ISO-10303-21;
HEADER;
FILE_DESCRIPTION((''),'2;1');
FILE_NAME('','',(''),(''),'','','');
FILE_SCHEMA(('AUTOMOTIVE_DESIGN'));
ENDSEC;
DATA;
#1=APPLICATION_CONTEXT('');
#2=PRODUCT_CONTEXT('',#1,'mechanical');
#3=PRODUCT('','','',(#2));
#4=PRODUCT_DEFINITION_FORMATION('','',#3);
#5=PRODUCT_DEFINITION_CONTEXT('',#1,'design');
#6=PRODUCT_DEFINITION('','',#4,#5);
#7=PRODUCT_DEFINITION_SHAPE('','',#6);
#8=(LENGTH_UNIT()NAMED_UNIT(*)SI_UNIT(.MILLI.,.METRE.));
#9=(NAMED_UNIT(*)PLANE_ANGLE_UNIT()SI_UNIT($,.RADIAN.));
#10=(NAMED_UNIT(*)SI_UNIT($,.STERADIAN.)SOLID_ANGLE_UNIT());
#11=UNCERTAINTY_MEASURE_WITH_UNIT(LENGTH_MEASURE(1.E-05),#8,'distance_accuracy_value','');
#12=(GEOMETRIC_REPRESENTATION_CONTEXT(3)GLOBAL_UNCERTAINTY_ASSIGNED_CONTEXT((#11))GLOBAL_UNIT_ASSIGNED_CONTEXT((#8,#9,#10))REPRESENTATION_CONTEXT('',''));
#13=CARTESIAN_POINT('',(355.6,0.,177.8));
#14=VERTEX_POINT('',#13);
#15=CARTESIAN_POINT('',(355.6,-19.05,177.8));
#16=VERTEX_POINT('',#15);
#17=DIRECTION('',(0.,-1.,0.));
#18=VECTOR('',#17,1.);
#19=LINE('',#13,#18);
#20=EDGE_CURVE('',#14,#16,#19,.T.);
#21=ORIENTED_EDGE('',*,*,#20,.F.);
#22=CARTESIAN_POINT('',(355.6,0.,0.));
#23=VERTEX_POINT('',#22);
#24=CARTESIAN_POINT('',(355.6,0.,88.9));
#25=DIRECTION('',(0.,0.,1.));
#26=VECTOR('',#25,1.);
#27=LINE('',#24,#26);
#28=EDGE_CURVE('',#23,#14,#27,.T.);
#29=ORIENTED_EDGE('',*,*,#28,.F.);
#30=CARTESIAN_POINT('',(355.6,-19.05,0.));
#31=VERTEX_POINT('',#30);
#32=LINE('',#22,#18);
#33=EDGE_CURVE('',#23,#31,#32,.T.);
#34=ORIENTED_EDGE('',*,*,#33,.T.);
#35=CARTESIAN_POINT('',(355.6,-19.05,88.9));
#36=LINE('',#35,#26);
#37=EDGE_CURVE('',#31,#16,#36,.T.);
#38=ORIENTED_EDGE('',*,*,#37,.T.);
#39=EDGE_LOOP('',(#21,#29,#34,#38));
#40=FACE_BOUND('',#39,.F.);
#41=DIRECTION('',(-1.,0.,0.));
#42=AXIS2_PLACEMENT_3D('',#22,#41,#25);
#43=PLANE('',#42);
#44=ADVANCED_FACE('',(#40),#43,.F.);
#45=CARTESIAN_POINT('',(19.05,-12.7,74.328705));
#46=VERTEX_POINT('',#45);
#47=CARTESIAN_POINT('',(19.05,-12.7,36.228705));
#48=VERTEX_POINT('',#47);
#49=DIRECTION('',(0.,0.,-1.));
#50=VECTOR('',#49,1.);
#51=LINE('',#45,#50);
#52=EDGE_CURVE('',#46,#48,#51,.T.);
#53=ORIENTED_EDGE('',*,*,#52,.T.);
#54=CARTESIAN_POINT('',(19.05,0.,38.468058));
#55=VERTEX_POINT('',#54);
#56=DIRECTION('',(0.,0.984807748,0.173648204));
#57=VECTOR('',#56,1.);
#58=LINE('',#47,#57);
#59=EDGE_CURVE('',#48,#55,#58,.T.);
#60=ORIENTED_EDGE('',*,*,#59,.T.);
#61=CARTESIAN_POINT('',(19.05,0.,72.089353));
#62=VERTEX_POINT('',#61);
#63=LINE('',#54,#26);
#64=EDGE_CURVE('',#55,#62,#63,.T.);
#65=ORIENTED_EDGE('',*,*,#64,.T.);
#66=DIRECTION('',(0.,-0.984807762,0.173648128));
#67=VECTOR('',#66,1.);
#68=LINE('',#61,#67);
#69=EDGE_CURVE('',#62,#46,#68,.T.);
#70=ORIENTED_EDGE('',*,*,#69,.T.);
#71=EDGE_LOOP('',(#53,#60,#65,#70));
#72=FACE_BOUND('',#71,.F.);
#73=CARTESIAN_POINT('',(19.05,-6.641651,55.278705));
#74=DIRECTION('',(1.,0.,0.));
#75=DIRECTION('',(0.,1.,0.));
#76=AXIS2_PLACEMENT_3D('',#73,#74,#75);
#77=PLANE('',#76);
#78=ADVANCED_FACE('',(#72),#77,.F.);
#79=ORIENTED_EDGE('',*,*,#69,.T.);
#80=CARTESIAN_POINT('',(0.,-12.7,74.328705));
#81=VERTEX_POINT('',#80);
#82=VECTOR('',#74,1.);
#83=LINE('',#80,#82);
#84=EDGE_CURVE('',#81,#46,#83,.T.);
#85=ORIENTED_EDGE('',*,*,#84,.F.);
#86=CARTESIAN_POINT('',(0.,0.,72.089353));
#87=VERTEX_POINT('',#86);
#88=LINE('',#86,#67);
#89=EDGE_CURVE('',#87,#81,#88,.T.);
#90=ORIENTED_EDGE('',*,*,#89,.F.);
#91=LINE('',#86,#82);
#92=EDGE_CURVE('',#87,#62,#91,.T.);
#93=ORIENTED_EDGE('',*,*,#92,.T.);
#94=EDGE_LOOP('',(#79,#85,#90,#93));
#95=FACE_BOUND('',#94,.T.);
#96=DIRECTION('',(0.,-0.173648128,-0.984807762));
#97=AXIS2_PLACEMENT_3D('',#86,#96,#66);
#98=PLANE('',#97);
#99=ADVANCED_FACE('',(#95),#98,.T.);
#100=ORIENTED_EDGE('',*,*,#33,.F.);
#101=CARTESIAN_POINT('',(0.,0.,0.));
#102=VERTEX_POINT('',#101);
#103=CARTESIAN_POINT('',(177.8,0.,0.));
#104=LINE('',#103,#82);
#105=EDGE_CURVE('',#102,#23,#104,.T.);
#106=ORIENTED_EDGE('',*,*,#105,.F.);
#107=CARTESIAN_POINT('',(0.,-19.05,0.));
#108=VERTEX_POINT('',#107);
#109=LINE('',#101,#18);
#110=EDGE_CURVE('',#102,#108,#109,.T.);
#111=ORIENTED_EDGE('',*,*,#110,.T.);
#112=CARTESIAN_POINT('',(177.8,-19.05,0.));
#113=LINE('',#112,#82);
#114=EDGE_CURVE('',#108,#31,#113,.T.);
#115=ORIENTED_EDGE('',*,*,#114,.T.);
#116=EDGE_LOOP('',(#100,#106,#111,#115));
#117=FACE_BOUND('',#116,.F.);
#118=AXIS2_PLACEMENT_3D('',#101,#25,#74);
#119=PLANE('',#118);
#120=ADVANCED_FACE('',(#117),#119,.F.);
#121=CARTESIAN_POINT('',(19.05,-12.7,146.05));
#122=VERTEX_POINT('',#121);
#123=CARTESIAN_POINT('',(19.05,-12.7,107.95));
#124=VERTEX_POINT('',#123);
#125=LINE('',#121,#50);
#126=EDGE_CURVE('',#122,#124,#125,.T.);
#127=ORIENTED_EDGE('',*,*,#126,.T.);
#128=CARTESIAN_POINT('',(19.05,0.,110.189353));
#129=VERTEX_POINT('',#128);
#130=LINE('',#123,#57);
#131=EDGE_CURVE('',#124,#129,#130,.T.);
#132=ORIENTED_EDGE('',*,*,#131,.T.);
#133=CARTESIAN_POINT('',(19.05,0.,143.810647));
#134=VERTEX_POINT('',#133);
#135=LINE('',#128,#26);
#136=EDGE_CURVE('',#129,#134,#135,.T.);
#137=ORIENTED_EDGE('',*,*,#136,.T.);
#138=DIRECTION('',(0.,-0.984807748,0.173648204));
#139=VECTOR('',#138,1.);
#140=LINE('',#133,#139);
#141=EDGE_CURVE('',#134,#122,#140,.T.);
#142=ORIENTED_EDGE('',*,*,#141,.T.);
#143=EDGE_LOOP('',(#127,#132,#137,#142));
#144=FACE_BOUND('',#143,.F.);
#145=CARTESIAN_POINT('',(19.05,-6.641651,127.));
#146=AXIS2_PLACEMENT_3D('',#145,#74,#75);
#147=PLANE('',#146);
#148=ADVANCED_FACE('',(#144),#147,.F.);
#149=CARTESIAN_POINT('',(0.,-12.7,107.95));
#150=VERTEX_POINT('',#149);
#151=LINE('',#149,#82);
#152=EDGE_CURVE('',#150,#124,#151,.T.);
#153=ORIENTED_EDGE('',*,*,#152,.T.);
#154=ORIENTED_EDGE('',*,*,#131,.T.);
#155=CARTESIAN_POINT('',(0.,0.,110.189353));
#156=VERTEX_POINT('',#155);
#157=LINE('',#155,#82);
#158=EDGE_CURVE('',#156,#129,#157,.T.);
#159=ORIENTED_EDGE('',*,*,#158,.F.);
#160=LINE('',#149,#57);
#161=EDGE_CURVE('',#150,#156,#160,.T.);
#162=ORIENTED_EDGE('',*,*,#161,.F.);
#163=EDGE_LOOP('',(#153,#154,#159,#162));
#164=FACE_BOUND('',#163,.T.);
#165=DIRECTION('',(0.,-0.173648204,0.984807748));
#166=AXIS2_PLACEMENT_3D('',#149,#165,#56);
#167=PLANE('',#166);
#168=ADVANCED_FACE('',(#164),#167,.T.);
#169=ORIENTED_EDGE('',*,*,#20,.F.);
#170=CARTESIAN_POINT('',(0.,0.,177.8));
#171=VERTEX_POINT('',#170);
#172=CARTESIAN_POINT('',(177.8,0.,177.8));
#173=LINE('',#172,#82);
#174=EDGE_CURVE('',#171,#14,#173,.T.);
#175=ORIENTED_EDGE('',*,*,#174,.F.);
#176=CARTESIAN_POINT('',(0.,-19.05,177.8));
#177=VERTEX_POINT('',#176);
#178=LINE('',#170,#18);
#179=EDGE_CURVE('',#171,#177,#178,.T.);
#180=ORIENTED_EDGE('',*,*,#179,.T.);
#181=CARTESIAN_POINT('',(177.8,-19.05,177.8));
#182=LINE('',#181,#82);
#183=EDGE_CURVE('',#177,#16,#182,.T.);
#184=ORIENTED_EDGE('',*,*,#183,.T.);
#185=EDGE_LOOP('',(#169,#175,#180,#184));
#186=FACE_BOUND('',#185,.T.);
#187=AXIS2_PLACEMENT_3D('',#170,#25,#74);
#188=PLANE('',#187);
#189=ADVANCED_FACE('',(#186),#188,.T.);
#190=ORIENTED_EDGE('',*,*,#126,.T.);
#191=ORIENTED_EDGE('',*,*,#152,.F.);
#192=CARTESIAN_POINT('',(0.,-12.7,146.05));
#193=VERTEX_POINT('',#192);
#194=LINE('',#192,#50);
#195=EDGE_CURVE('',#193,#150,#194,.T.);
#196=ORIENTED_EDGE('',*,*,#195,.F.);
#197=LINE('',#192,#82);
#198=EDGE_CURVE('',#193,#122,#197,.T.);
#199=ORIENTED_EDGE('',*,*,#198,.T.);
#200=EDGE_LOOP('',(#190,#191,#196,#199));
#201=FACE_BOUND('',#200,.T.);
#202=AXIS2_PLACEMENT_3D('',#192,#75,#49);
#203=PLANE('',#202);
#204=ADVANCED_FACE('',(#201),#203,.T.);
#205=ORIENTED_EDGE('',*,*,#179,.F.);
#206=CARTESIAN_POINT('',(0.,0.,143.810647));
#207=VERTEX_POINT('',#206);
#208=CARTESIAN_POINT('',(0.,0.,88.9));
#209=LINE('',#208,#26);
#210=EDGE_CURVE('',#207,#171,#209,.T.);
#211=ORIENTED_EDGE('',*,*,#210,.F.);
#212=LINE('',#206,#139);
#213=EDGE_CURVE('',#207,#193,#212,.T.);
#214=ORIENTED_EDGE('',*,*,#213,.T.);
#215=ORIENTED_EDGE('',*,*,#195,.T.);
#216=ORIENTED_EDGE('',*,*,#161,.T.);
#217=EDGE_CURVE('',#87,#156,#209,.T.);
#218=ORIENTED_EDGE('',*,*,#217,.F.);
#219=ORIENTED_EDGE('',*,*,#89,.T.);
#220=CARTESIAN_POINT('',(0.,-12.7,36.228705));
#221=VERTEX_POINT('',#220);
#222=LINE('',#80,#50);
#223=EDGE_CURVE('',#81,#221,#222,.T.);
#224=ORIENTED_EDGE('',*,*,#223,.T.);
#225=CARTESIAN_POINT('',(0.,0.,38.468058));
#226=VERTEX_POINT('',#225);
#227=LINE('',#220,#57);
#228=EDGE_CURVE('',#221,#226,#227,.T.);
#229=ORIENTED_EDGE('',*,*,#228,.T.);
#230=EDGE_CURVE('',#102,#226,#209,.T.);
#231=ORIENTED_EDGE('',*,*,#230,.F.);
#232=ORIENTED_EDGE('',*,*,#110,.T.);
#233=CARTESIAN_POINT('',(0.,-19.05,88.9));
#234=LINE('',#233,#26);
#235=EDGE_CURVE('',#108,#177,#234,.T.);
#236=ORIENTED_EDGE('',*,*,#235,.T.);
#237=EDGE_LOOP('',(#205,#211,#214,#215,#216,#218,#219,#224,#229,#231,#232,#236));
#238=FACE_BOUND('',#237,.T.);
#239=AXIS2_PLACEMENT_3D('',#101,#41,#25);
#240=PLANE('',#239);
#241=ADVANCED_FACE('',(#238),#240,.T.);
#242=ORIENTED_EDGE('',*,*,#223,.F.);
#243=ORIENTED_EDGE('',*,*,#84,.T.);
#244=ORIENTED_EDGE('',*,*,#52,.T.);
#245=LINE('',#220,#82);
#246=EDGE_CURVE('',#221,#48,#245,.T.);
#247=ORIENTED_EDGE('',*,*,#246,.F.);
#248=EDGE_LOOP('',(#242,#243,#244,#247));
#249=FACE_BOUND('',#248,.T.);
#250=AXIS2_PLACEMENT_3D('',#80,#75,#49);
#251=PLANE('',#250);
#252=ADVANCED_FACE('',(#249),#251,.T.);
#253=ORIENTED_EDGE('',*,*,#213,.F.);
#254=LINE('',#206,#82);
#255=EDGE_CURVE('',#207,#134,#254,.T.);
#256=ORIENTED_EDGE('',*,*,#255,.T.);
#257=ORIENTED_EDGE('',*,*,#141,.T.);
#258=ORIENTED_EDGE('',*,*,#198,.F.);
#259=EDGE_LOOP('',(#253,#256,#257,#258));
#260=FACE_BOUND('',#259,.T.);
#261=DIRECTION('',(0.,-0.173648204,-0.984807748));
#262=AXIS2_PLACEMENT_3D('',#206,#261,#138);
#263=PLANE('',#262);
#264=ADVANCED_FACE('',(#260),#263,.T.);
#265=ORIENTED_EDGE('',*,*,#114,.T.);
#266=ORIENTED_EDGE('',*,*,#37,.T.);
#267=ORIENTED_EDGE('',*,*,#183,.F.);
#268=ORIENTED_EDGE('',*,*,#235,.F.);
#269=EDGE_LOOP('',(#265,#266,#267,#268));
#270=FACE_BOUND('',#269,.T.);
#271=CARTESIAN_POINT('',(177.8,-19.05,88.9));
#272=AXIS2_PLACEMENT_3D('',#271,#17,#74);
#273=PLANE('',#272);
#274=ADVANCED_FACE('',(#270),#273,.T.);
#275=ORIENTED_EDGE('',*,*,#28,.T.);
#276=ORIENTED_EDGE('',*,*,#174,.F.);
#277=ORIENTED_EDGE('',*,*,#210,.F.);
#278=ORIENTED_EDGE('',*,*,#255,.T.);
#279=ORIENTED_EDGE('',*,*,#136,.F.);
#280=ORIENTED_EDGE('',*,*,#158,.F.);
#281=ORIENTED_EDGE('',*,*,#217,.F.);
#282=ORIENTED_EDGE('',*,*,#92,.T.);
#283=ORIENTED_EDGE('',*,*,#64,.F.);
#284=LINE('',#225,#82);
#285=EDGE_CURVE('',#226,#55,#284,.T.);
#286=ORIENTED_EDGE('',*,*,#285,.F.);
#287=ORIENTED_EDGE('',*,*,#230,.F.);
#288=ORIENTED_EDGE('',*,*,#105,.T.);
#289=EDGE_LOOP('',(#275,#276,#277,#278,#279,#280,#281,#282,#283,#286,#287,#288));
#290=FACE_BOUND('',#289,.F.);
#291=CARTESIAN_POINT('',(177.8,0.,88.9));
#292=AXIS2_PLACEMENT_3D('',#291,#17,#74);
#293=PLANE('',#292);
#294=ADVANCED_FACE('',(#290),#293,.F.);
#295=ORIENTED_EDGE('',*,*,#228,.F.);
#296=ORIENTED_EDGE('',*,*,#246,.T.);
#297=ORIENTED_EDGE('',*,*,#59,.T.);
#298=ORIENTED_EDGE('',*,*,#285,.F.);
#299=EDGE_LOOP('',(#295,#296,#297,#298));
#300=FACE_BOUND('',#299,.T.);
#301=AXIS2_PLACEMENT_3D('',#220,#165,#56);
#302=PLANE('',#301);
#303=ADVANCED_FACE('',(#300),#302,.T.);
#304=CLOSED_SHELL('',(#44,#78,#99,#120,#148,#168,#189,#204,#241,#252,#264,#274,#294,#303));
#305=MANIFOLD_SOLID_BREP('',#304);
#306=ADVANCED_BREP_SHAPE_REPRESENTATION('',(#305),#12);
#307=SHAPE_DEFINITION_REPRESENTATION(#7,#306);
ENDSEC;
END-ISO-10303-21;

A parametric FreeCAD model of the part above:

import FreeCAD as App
import Part
import Sketcher
from FreeCAD import Vector
Q = App.Units.Quantity

doc = App.newDocument("Part")
params = doc.addObject("Spreadsheet::Sheet", "Params")
for row, (alias, value) in enumerate([
    ("sketch1_width", "14 in"),
    ("sketch1_height", "7 in"),
    ("pad1_length", "0.75 in"),
    ("sketch2_height", "1.5 in"),
    ("pocket1_length", "0.75 in"),
], start=1):
    params.set(f"A{row}", alias)
    params.set(f"B{row}", "=" + value)
    params.setAlias(f"B{row}", alias)

body = doc.addObject("PartDesign::Body", "Body")

# Sketch on XZ plane
sketch1 = body.newObject("Sketcher::SketchObject", "Sketch")
sketch1.AttachmentSupport = (doc.getObject("XZ_Plane"), [""])
sketch1.MapMode = "FlatFace"
sketch1.addGeometry(Part.LineSegment(Vector(0, 178, 0), Vector(0, 0, 0)), False)
sketch1.addGeometry(Part.LineSegment(Vector(0, 0, 0), Vector(356, 0, 0)), False)
sketch1.addGeometry(Part.LineSegment(Vector(356, 0, 0), Vector(356, 178, 0)), False)
sketch1.addGeometry(Part.LineSegment(Vector(356, 178, 0), Vector(0, 178, 0)), False)
sketch1.addConstraint(Sketcher.Constraint("Coincident", 0, 2, 1, 1))
sketch1.addConstraint(Sketcher.Constraint("Coincident", 1, 2, 2, 1))
sketch1.addConstraint(Sketcher.Constraint("Coincident", 2, 2, 3, 1))
sketch1.addConstraint(Sketcher.Constraint("Coincident", 3, 2, 0, 1))
sketch1.addConstraint(Sketcher.Constraint("Vertical", 0))
sketch1.addConstraint(Sketcher.Constraint("Horizontal", 1))
sketch1.addConstraint(Sketcher.Constraint("Vertical", 2))
sketch1.addConstraint(Sketcher.Constraint("Horizontal", 3))
sketch1.addConstraint(Sketcher.Constraint("Coincident", 0, 2, -1, 1))
sketch1.addConstraint(Sketcher.Constraint("DistanceX", 1, 1, 1, 2, Q("14 in")))
sketch1.addConstraint(Sketcher.Constraint("DistanceY", 0, 2, 0, 1, Q("7 in")))
sketch1.setExpression("Constraints[9]", "Params.sketch1_width")
sketch1.setExpression("Constraints[10]", "Params.sketch1_height")
pad1 = body.newObject("PartDesign::Pad", "Pad")
pad1.Profile = sketch1
pad1.setExpression("Length", "Params.pad1_length")

# Sketch on YZ plane
sketch2 = body.newObject("Sketcher::SketchObject", "Sketch001")
sketch2.AttachmentSupport = (doc.getObject("YZ_Plane"), [""])
sketch2.MapMode = "FlatFace"
sketch2.addGeometry(Part.LineSegment(Vector(0, 144, 0), Vector(-13, 146, 0)), False)
sketch2.addGeometry(Part.LineSegment(Vector(-13, 146, 0), Vector(-13, 108, 0)), False)
sketch2.addGeometry(Part.LineSegment(Vector(-13, 108, 0), Vector(0, 110, 0)), False)
sketch2.addGeometry(Part.LineSegment(Vector(0, 110, 0), Vector(0, 144, 0)), False)
sketch2.addGeometry(Part.LineSegment(Vector(0, 38, 0), Vector(0, 72, 0)), False)
sketch2.addGeometry(Part.LineSegment(Vector(0, 72, 0), Vector(-13, 74, 0)), False)
sketch2.addGeometry(Part.LineSegment(Vector(-13, 74, 0), Vector(-13, 36, 0)), False)
sketch2.addGeometry(Part.LineSegment(Vector(-13, 36, 0), Vector(0, 38, 0)), False)
sketch2.addConstraint(Sketcher.Constraint("Coincident", 0, 2, 1, 1))
sketch2.addConstraint(Sketcher.Constraint("Coincident", 1, 2, 2, 1))
sketch2.addConstraint(Sketcher.Constraint("Coincident", 2, 2, 3, 1))
sketch2.addConstraint(Sketcher.Constraint("Coincident", 3, 2, 0, 1))
sketch2.addConstraint(Sketcher.Constraint("Coincident", 4, 2, 5, 1))
sketch2.addConstraint(Sketcher.Constraint("Coincident", 5, 2, 6, 1))
sketch2.addConstraint(Sketcher.Constraint("Coincident", 6, 2, 7, 1))
sketch2.addConstraint(Sketcher.Constraint("Coincident", 7, 2, 4, 1))
sketch2.addConstraint(Sketcher.Constraint("Vertical", 1))
sketch2.addConstraint(Sketcher.Constraint("Vertical", 3))
sketch2.addConstraint(Sketcher.Constraint("Vertical", 4))
sketch2.addConstraint(Sketcher.Constraint("Vertical", 6))
sketch2.addConstraint(Sketcher.Constraint("PointOnObject", 2, 2, -2))
sketch2.addConstraint(Sketcher.Constraint("PointOnObject", 4, 2, -2))
sketch2.addConstraint(Sketcher.Constraint("Parallel", 0, 5))
sketch2.addConstraint(Sketcher.Constraint("Parallel", 2, 7))
sketch2.addConstraint(Sketcher.Constraint("Vertical", 1, 2, 5, 2))
sketch2.addConstraint(Sketcher.Constraint("Equal", 3, 4))
sketch2.addConstraint(Sketcher.Constraint("Equal", 0, 2))
sketch2.addConstraint(Sketcher.Constraint("DistanceY", 1, 2, 1, 1, Q("1.5 in")))
sketch2.addConstraint(Sketcher.Constraint("Angle", 0, Q("169.999998 deg")))
sketch2.addConstraint(Sketcher.Constraint("DistanceX", 0, 2, -1, 1, Q("0.5 in")))
sketch2.addConstraint(Sketcher.Constraint("DistanceY", 4, 2, 2, 2, Q("1.5 in")))
sketch2.addConstraint(Sketcher.Constraint("DistanceY", -1, 1, 0, 2, Q("5.75 in")))
sketch2.setExpression("Constraints[19]", "Params.sketch2_height")
pocket1 = body.newObject("PartDesign::Pocket", "Pocket")
pocket1.Profile = sketch2
pocket1.setExpression("Length", "Params.pocket1_length")
pocket1.Reversed = True

doc.recompute()
